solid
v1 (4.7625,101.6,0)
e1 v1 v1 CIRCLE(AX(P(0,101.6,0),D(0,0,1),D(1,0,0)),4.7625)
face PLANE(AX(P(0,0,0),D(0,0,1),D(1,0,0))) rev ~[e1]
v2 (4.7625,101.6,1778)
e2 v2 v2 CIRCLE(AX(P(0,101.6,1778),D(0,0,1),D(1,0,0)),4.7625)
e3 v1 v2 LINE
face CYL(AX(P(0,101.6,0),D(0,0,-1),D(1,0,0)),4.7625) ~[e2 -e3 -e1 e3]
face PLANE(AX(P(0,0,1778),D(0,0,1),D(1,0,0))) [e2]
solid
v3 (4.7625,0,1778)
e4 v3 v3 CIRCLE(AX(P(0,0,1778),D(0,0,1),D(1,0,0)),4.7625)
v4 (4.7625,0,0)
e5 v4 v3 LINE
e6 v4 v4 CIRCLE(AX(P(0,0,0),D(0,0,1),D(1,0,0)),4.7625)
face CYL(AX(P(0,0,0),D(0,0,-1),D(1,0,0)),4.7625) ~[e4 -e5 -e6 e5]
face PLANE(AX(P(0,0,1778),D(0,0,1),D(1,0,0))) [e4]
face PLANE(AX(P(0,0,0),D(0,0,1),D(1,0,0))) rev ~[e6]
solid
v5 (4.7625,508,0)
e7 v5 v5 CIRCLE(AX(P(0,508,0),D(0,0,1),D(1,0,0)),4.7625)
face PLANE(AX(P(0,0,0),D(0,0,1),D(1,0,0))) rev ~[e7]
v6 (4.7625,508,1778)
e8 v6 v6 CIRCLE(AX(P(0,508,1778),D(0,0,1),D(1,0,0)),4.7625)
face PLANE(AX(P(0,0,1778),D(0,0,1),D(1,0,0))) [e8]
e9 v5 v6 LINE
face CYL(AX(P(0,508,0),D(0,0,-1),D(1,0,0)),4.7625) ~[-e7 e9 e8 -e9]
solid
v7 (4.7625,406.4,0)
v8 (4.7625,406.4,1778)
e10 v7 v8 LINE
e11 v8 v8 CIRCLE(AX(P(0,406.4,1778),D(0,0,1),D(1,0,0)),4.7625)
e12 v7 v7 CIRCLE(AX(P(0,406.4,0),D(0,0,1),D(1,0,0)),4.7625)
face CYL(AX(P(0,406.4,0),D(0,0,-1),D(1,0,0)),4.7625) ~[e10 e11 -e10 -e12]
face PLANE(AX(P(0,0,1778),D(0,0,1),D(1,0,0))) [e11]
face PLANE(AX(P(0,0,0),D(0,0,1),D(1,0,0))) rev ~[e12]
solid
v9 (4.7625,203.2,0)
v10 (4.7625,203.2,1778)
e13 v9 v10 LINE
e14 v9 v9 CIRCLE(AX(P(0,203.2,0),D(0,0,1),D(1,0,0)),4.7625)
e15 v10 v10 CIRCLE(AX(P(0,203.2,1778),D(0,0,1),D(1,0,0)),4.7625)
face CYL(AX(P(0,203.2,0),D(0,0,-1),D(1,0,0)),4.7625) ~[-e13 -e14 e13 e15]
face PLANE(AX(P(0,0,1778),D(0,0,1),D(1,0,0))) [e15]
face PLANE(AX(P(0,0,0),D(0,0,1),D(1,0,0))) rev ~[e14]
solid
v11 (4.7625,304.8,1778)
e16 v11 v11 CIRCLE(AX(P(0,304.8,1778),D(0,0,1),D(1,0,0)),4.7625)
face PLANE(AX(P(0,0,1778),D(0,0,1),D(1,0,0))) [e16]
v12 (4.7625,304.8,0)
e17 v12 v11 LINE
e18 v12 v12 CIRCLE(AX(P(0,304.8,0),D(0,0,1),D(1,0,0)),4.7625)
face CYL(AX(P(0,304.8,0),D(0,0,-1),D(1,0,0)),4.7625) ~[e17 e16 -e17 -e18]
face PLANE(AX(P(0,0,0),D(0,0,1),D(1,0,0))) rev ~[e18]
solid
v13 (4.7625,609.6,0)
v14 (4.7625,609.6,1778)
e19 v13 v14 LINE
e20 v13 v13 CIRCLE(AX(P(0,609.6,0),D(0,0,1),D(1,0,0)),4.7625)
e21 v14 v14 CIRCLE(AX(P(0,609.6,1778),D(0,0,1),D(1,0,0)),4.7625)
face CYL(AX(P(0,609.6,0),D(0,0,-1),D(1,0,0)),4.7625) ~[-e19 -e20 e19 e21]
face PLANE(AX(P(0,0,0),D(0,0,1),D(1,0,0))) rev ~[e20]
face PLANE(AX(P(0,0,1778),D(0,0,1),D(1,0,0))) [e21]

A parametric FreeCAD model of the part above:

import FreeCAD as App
import Part
import Sketcher
from FreeCAD import Vector
Q = App.Units.Quantity

doc = App.newDocument("Part")
body = doc.addObject("PartDesign::Body", "Body")
body.AllowCompound = True

# Sketch on XY plane
sketch1 = body.newObject("Sketcher::SketchObject", "Sketch")
sketch1.AttachmentSupport = (doc.getObject("XY_Plane"), [""])
sketch1.MapMode = "FlatFace"
sketch1.addGeometry(Part.Circle(Vector(0, 0, 0), Vector(0, 0, 1), 4.8), False)
sketch1.addGeometry(Part.Circle(Vector(0, 101.6, 0), Vector(0, 0, 1), 4.8), False)
sketch1.addGeometry(Part.Circle(Vector(0, 203.2, 0), Vector(0, 0, 1), 4.8), False)
sketch1.addGeometry(Part.Circle(Vector(0, 304.8, 0), Vector(0, 0, 1), 4.8), False)
sketch1.addGeometry(Part.Circle(Vector(0, 406.4, 0), Vector(0, 0, 1), 4.8), False)
sketch1.addGeometry(Part.Circle(Vector(0, 508, 0), Vector(0, 0, 1), 4.8), False)
sketch1.addGeometry(Part.Circle(Vector(0, 609.6, 0), Vector(0, 0, 1), 4.8), False)
sketch1.addConstraint(Sketcher.Constraint("Coincident", 0, 3, -1, 1))
sketch1.addConstraint(Sketcher.Constraint("Equal", 0, 1))
sketch1.addConstraint(Sketcher.Constraint("Equal", 1, 2))
sketch1.addConstraint(Sketcher.Constraint("Equal", 2, 3))
sketch1.addConstraint(Sketcher.Constraint("Equal", 3, 4))
sketch1.addConstraint(Sketcher.Constraint("Equal", 4, 5))
sketch1.addConstraint(Sketcher.Constraint("Equal", 5, 6))
sketch1.addConstraint(Sketcher.Constraint("PointOnObject", 1, 3, -2))
sketch1.addConstraint(Sketcher.Constraint("PointOnObject", 2, 3, -2))
sketch1.addConstraint(Sketcher.Constraint("PointOnObject", 3, 3, -2))
sketch1.addConstraint(Sketcher.Constraint("PointOnObject", 4, 3, -2))
sketch1.addConstraint(Sketcher.Constraint("PointOnObject", 5, 3, -2))
sketch1.addConstraint(Sketcher.Constraint("PointOnObject", 6, 3, -2))
sketch1.addConstraint(Sketcher.Constraint("Diameter", 0, Q("0.375 in")))
sketch1.addConstraint(Sketcher.Constraint("DistanceY", -1, 1, 1, 3, Q("4 in")))
sketch1.addConstraint(Sketcher.Constraint("DistanceY", 1, 3, 2, 3, Q("4 in")))
sketch1.addConstraint(Sketcher.Constraint("DistanceY", 2, 3, 3, 3, Q("4 in")))
sketch1.addConstraint(Sketcher.Constraint("DistanceY", 3, 3, 4, 3, Q("4 in")))
sketch1.addConstraint(Sketcher.Constraint("DistanceY", 4, 3, 5, 3, Q("4 in")))
sketch1.addConstraint(Sketcher.Constraint("DistanceY", 5, 3, 6, 3, Q("4 in")))
pad1 = body.newObject("PartDesign::Pad", "Pad")
pad1.Profile = sketch1
pad1.Length = Q("70 in")

doc.recompute()
